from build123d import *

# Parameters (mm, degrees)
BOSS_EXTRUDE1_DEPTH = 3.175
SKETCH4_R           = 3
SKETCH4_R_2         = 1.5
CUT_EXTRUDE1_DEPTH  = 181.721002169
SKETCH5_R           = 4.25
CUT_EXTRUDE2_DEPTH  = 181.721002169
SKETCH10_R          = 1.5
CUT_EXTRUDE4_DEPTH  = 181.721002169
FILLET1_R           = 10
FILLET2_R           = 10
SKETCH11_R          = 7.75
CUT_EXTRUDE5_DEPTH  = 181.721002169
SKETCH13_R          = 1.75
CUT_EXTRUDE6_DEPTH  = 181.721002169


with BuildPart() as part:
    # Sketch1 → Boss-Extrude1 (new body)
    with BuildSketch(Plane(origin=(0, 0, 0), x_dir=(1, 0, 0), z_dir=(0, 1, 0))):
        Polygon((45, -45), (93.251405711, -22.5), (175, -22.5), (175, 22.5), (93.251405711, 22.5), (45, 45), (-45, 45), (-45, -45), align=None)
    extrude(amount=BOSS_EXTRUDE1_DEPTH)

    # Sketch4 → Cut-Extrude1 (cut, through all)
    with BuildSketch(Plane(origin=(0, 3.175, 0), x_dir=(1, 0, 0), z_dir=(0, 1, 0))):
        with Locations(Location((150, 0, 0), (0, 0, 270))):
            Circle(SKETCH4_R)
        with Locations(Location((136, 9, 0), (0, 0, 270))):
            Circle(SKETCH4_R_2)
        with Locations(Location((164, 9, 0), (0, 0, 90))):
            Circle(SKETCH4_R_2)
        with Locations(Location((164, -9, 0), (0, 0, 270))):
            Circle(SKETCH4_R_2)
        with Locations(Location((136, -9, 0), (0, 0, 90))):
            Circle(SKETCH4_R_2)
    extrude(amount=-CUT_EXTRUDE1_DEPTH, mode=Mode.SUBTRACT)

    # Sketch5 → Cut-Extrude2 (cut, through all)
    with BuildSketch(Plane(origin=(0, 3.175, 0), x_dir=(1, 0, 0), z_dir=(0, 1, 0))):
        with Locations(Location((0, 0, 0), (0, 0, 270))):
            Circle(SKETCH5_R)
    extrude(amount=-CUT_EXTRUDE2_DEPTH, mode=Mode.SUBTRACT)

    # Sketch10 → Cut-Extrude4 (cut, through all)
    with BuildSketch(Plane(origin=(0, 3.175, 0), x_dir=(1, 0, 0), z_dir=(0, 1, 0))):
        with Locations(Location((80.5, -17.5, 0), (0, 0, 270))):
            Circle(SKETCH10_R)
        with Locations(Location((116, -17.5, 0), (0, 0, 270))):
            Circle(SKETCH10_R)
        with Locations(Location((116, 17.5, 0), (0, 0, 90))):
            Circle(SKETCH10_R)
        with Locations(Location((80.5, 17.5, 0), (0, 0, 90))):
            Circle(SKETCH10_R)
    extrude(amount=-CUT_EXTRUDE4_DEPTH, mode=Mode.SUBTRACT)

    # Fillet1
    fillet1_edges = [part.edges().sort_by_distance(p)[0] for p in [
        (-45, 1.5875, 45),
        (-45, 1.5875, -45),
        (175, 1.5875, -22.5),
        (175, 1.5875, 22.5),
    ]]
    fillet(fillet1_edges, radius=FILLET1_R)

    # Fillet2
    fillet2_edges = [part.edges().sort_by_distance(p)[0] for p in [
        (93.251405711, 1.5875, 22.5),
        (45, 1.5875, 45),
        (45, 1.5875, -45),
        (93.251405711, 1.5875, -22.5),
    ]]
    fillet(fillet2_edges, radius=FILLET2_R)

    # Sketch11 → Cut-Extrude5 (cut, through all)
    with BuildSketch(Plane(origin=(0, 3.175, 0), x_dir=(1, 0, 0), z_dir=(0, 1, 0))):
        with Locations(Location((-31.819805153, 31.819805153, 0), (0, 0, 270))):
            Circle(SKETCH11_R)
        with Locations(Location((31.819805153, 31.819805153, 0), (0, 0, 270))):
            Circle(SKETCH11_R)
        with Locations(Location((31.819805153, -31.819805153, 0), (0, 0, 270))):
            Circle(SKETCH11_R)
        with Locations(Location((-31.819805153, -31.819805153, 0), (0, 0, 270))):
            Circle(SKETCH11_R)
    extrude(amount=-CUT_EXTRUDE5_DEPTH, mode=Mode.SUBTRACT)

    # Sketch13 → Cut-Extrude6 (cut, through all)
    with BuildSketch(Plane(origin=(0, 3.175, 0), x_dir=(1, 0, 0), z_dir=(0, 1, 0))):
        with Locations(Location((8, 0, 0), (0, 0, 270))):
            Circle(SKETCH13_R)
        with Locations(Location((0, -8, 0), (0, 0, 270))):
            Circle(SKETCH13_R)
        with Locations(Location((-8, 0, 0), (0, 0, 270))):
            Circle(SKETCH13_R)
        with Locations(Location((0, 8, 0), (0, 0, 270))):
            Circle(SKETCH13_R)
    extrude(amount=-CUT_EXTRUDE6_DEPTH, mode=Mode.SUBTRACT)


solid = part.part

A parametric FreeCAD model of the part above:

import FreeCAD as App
import Part
import Sketcher
Q = App.Units.Quantity


def edges_at(feature, points):
    """Names of the edges that pass closest to the given points."""
    edges = feature.Shape.Edges
    near = lambda p: min(range(len(edges)), key=lambda i: edges[i].distToShape(Part.Vertex(*p))[0])
    return sorted({f"Edge{near(p) + 1}" for p in points})


def add_polygon(sketch, points):
    """Adds a closed chain of lines whose ends are joined by coincident constraints."""
    first, n = sketch.GeometryCount, len(points)
    for a, b in zip(points, points[1:] + points[:1]):
        sketch.addGeometry(Part.LineSegment(App.Vector(*a, 0), App.Vector(*b, 0)), False)
    for i in range(n):
        sketch.addConstraint(Sketcher.Constraint("Coincident", first + i, 2, first + (i + 1) % n, 1))

doc = App.newDocument("Part")
body = doc.addObject("PartDesign::Body", "Body")

# Sketch on XZ plane
sketch1 = body.newObject("Sketcher::SketchObject", "Sketch")
sketch1.AttachmentSupport = (doc.getObject("XZ_Plane"), [""])
sketch1.MapMode = "FlatFace"
add_polygon(sketch1, [(45, 45), (93, 22), (175, 22), (175, -22), (93, -22), (45, -45), (-45, -45), (-45, 45)])  # lines 0-7
sketch1.addConstraint(Sketcher.Constraint("Horizontal", 1))
sketch1.addConstraint(Sketcher.Constraint("Vertical", 2))
sketch1.addConstraint(Sketcher.Constraint("Horizontal", 3))
sketch1.addConstraint(Sketcher.Constraint("Horizontal", 5))
sketch1.addConstraint(Sketcher.Constraint("Vertical", 6))
sketch1.addConstraint(Sketcher.Constraint("Horizontal", 7))
sketch1.addConstraint(Sketcher.Constraint("Symmetric", 4, 2, 6, 2, -1, 1))
sketch1.addConstraint(Sketcher.Constraint("Symmetric", 0, 2, 3, 2, -1))
sketch1.addConstraint(Sketcher.Constraint("Vertical", 4, 2, 7, 2))
sketch1.addConstraint(Sketcher.Constraint("Equal", 7, 6))
sketch1.addConstraint(Sketcher.Constraint("DistanceX", 5, 2, 5, 1, Q("90 mm")))
sketch1.addConstraint(Sketcher.Constraint("DistanceY", 2, 2, 2, 1, Q("45 mm")))
sketch1.addConstraint(Sketcher.Constraint("Angle", 0, Q("-25 deg")))
sketch1.addConstraint(Sketcher.Constraint("DistanceX", -1, 1, 1, 2, Q("175 mm")))
pad1 = body.newObject("PartDesign::Pad", "Pad")
pad1.Profile = sketch1
pad1.Length = 3.175
pad1.Reversed = True

# Sketch on XZ plane
sketch2 = body.newObject("Sketcher::SketchObject", "Sketch001")
sketch2.AttachmentSupport = (doc.getObject("XZ_Plane"), [""])
sketch2.MapMode = "FlatFace"
sketch2.AttachmentOffset = App.Placement(App.Vector(0, 0, -3.175), App.Rotation())
sketch2.addGeometry(Part.Circle(App.Vector(150, 0, 0), App.Vector(0, 0, 1), 3), False)
sketch2.addGeometry(Part.Circle(App.Vector(136, -9, 0), App.Vector(0, 0, 1), 1.5), False)
sketch2.addGeometry(Part.Circle(App.Vector(164, -9, 0), App.Vector(0, 0, 1), 1.5), False)
sketch2.addGeometry(Part.Circle(App.Vector(164, 9, 0), App.Vector(0, 0, 1), 1.5), False)
sketch2.addGeometry(Part.Circle(App.Vector(136, 9, 0), App.Vector(0, 0, 1), 1.5), False)
sketch2.addConstraint(Sketcher.Constraint("Equal", 1, 2))
sketch2.addConstraint(Sketcher.Constraint("Equal", 2, 3))
sketch2.addConstraint(Sketcher.Constraint("Equal", 3, 4))
sketch2.addConstraint(Sketcher.Constraint("Symmetric", 2, 3, 3, 3, -1))
sketch2.addConstraint(Sketcher.Constraint("Symmetric", 1, 3, 4, 3, -1))
sketch2.addConstraint(Sketcher.Constraint("PointOnObject", 0, 3, -1))
sketch2.addConstraint(Sketcher.Constraint("Horizontal", 1, 3, 2, 3))
sketch2.addConstraint(Sketcher.Constraint("Diameter", 0, Q("6 mm")))
sketch2.addConstraint(Sketcher.Constraint("Diameter", 1, Q("3 mm")))
sketch2.addConstraint(Sketcher.Constraint("DistanceX", -1, 1, 0, 3, Q("150 mm")))
sketch2.addConstraint(Sketcher.Constraint("DistanceX", -1, 1, 1, 3, Q("136 mm")))
sketch2.addConstraint(Sketcher.Constraint("DistanceY", 1, 3, -1, 1, Q("9 mm")))
sketch2.addConstraint(Sketcher.Constraint("DistanceX", -1, 1, 2, 3, Q("164 mm")))
pocket1 = body.newObject("PartDesign::Pocket", "Pocket")
pocket1.Profile = sketch2
pocket1.Type = "ThroughAll"
pocket1.Reversed = True

# Sketch on XZ plane
sketch3 = body.newObject("Sketcher::SketchObject", "Sketch002")
sketch3.AttachmentSupport = (doc.getObject("XZ_Plane"), [""])
sketch3.MapMode = "FlatFace"
sketch3.AttachmentOffset = App.Placement(App.Vector(0, 0, -3.175), App.Rotation())
sketch3.addGeometry(Part.Circle(App.Vector(0, 0, 0), App.Vector(0, 0, 1), 4.2), False)
sketch3.addConstraint(Sketcher.Constraint("Coincident", 0, 3, -1, 1))
sketch3.addConstraint(Sketcher.Constraint("Diameter", 0, Q("8.5 mm")))
pocket2 = body.newObject("PartDesign::Pocket", "Pocket001")
pocket2.Profile = sketch3
pocket2.Type = "ThroughAll"
pocket2.Reversed = True

# Sketch on XZ plane
sketch4 = body.newObject("Sketcher::SketchObject", "Sketch003")
sketch4.AttachmentSupport = (doc.getObject("XZ_Plane"), [""])
sketch4.MapMode = "FlatFace"
sketch4.AttachmentOffset = App.Placement(App.Vector(0, 0, -3.175), App.Rotation())
sketch4.addGeometry(Part.Circle(App.Vector(80.5, 17.5, 0), App.Vector(0, 0, 1), 1.5), False)
sketch4.addGeometry(Part.Circle(App.Vector(116, 17.5, 0), App.Vector(0, 0, 1), 1.5), False)
sketch4.addGeometry(Part.Circle(App.Vector(116, -17.5, 0), App.Vector(0, 0, 1), 1.5), False)
sketch4.addGeometry(Part.Circle(App.Vector(80.5, -17.5, 0), App.Vector(0, 0, 1), 1.5), False)
sketch4.addConstraint(Sketcher.Constraint("Equal", 0, 1))
sketch4.addConstraint(Sketcher.Constraint("Equal", 1, 2))
sketch4.addConstraint(Sketcher.Constraint("Equal", 2, 3))
sketch4.addConstraint(Sketcher.Constraint("Symmetric", 1, 3, 2, 3, -1))
sketch4.addConstraint(Sketcher.Constraint("Symmetric", 0, 3, 3, 3, -1))
sketch4.addConstraint(Sketcher.Constraint("Horizontal", 0, 3, 1, 3))
sketch4.addConstraint(Sketcher.Constraint("Diameter", 0, Q("3 mm")))
sketch4.addConstraint(Sketcher.Constraint("DistanceX", -1, 1, 1, 3, Q("116 mm")))
sketch4.addConstraint(Sketcher.Constraint("DistanceY", 2, 3, 1, 3, Q("35 mm")))
sketch4.addConstraint(Sketcher.Constraint("DistanceX", -1, 1, 0, 3, Q("80.5 mm")))
pocket3 = body.newObject("PartDesign::Pocket", "Pocket002")
pocket3.Profile = sketch4
pocket3.Type = "ThroughAll"
pocket3.Reversed = True
doc.recompute()

fillet = body.newObject("PartDesign::Fillet", "Fillet")
fillet.Base = (pocket3, edges_at(pocket3, [
    (-45, 1.587, 45),
    (-45, 1.587, -45),
    (175, 1.587, -22.5),
    (175, 1.587, 22.5),
]))
fillet.Radius = 10
doc.recompute()

fillet2 = body.newObject("PartDesign::Fillet", "Fillet001")
fillet2.Base = (fillet, edges_at(fillet, [
    (93.251, 1.587, 22.5),
    (45, 1.587, 45),
    (45, 1.587, -45),
    (93.251, 1.587, -22.5),
]))
fillet2.Radius = 10

# Sketch on XZ plane
sketch5 = body.newObject("Sketcher::SketchObject", "Sketch004")
sketch5.AttachmentSupport = (doc.getObject("XZ_Plane"), [""])
sketch5.MapMode = "FlatFace"
sketch5.AttachmentOffset = App.Placement(App.Vector(0, 0, -3.175), App.Rotation())
sketch5.addGeometry(Part.Circle(App.Vector(-32, -32, 0), App.Vector(0, 0, 1), 8), False)
sketch5.addGeometry(Part.Circle(App.Vector(32, -32, 0), App.Vector(0, 0, 1), 8), False)
sketch5.addGeometry(Part.Circle(App.Vector(32, 32, 0), App.Vector(0, 0, 1), 8), False)
sketch5.addGeometry(Part.Circle(App.Vector(-32, 32, 0), App.Vector(0, 0, 1), 8), False)
sketch5.addConstraint(Sketcher.Constraint("Equal", 0, 1))
sketch5.addConstraint(Sketcher.Constraint("Equal", 1, 2))
sketch5.addConstraint(Sketcher.Constraint("Equal", 2, 3))
sketch5.addConstraint(Sketcher.Constraint("Symmetric", 0, 3, 2, 3, -1, 1))
sketch5.addConstraint(Sketcher.Constraint("Symmetric", 1, 3, 3, 3, -1, 1))
sketch5.addConstraint(Sketcher.Constraint("Symmetric", 0, 3, 1, 3, -2))
sketch5.addConstraint(Sketcher.Constraint("Diameter", 0, Q("15.5 mm")))
sketch5.addConstraint(Sketcher.Constraint("DistanceX", 0, 3, 1, 3, Q("63.63961 mm")))
sketch5.addConstraint(Sketcher.Constraint("DistanceY", 1, 3, 2, 3, Q("63.63961 mm")))
pocket4 = body.newObject("PartDesign::Pocket", "Pocket003")
pocket4.Profile = sketch5
pocket4.Type = "ThroughAll"
pocket4.Reversed = True

# Sketch on XZ plane
sketch6 = body.newObject("Sketcher::SketchObject", "Sketch005")
sketch6.AttachmentSupport = (doc.getObject("XZ_Plane"), [""])
sketch6.MapMode = "FlatFace"
sketch6.AttachmentOffset = App.Placement(App.Vector(0, 0, -3.175), App.Rotation())
sketch6.addGeometry(Part.Circle(App.Vector(8, 0, 0), App.Vector(0, 0, 1), 1.8), False)
sketch6.addGeometry(Part.Circle(App.Vector(0, 8, 0), App.Vector(0, 0, 1), 1.8), False)
sketch6.addGeometry(Part.Circle(App.Vector(-8, 0, 0), App.Vector(0, 0, 1), 1.8), False)
sketch6.addGeometry(Part.Circle(App.Vector(0, -8, 0), App.Vector(0, 0, 1), 1.8), False)
sketch6.addConstraint(Sketcher.Constraint("Equal", 0, 1))
sketch6.addConstraint(Sketcher.Constraint("Equal", 1, 2))
sketch6.addConstraint(Sketcher.Constraint("Equal", 2, 3))
sketch6.addConstraint(Sketcher.Constraint("Symmetric", 0, 3, 2, 3, -1, 1))
sketch6.addConstraint(Sketcher.Constraint("Symmetric", 1, 3, 3, 3, -1, 1))
sketch6.addConstraint(Sketcher.Constraint("PointOnObject", 0, 3, -1))
sketch6.addConstraint(Sketcher.Constraint("PointOnObject", 1, 3, -2))
sketch6.addConstraint(Sketcher.Constraint("Diameter", 0, Q("3.5 mm")))
sketch6.addConstraint(Sketcher.Constraint("DistanceX", -1, 1, 0, 3, Q("8 mm")))
sketch6.addConstraint(Sketcher.Constraint("DistanceY", -1, 1, 1, 3, Q("8 mm")))
pocket5 = body.newObject("PartDesign::Pocket", "Pocket004")
pocket5.Profile = sketch6
pocket5.Type = "ThroughAll"
pocket5.Reversed = True

doc.recompute()
